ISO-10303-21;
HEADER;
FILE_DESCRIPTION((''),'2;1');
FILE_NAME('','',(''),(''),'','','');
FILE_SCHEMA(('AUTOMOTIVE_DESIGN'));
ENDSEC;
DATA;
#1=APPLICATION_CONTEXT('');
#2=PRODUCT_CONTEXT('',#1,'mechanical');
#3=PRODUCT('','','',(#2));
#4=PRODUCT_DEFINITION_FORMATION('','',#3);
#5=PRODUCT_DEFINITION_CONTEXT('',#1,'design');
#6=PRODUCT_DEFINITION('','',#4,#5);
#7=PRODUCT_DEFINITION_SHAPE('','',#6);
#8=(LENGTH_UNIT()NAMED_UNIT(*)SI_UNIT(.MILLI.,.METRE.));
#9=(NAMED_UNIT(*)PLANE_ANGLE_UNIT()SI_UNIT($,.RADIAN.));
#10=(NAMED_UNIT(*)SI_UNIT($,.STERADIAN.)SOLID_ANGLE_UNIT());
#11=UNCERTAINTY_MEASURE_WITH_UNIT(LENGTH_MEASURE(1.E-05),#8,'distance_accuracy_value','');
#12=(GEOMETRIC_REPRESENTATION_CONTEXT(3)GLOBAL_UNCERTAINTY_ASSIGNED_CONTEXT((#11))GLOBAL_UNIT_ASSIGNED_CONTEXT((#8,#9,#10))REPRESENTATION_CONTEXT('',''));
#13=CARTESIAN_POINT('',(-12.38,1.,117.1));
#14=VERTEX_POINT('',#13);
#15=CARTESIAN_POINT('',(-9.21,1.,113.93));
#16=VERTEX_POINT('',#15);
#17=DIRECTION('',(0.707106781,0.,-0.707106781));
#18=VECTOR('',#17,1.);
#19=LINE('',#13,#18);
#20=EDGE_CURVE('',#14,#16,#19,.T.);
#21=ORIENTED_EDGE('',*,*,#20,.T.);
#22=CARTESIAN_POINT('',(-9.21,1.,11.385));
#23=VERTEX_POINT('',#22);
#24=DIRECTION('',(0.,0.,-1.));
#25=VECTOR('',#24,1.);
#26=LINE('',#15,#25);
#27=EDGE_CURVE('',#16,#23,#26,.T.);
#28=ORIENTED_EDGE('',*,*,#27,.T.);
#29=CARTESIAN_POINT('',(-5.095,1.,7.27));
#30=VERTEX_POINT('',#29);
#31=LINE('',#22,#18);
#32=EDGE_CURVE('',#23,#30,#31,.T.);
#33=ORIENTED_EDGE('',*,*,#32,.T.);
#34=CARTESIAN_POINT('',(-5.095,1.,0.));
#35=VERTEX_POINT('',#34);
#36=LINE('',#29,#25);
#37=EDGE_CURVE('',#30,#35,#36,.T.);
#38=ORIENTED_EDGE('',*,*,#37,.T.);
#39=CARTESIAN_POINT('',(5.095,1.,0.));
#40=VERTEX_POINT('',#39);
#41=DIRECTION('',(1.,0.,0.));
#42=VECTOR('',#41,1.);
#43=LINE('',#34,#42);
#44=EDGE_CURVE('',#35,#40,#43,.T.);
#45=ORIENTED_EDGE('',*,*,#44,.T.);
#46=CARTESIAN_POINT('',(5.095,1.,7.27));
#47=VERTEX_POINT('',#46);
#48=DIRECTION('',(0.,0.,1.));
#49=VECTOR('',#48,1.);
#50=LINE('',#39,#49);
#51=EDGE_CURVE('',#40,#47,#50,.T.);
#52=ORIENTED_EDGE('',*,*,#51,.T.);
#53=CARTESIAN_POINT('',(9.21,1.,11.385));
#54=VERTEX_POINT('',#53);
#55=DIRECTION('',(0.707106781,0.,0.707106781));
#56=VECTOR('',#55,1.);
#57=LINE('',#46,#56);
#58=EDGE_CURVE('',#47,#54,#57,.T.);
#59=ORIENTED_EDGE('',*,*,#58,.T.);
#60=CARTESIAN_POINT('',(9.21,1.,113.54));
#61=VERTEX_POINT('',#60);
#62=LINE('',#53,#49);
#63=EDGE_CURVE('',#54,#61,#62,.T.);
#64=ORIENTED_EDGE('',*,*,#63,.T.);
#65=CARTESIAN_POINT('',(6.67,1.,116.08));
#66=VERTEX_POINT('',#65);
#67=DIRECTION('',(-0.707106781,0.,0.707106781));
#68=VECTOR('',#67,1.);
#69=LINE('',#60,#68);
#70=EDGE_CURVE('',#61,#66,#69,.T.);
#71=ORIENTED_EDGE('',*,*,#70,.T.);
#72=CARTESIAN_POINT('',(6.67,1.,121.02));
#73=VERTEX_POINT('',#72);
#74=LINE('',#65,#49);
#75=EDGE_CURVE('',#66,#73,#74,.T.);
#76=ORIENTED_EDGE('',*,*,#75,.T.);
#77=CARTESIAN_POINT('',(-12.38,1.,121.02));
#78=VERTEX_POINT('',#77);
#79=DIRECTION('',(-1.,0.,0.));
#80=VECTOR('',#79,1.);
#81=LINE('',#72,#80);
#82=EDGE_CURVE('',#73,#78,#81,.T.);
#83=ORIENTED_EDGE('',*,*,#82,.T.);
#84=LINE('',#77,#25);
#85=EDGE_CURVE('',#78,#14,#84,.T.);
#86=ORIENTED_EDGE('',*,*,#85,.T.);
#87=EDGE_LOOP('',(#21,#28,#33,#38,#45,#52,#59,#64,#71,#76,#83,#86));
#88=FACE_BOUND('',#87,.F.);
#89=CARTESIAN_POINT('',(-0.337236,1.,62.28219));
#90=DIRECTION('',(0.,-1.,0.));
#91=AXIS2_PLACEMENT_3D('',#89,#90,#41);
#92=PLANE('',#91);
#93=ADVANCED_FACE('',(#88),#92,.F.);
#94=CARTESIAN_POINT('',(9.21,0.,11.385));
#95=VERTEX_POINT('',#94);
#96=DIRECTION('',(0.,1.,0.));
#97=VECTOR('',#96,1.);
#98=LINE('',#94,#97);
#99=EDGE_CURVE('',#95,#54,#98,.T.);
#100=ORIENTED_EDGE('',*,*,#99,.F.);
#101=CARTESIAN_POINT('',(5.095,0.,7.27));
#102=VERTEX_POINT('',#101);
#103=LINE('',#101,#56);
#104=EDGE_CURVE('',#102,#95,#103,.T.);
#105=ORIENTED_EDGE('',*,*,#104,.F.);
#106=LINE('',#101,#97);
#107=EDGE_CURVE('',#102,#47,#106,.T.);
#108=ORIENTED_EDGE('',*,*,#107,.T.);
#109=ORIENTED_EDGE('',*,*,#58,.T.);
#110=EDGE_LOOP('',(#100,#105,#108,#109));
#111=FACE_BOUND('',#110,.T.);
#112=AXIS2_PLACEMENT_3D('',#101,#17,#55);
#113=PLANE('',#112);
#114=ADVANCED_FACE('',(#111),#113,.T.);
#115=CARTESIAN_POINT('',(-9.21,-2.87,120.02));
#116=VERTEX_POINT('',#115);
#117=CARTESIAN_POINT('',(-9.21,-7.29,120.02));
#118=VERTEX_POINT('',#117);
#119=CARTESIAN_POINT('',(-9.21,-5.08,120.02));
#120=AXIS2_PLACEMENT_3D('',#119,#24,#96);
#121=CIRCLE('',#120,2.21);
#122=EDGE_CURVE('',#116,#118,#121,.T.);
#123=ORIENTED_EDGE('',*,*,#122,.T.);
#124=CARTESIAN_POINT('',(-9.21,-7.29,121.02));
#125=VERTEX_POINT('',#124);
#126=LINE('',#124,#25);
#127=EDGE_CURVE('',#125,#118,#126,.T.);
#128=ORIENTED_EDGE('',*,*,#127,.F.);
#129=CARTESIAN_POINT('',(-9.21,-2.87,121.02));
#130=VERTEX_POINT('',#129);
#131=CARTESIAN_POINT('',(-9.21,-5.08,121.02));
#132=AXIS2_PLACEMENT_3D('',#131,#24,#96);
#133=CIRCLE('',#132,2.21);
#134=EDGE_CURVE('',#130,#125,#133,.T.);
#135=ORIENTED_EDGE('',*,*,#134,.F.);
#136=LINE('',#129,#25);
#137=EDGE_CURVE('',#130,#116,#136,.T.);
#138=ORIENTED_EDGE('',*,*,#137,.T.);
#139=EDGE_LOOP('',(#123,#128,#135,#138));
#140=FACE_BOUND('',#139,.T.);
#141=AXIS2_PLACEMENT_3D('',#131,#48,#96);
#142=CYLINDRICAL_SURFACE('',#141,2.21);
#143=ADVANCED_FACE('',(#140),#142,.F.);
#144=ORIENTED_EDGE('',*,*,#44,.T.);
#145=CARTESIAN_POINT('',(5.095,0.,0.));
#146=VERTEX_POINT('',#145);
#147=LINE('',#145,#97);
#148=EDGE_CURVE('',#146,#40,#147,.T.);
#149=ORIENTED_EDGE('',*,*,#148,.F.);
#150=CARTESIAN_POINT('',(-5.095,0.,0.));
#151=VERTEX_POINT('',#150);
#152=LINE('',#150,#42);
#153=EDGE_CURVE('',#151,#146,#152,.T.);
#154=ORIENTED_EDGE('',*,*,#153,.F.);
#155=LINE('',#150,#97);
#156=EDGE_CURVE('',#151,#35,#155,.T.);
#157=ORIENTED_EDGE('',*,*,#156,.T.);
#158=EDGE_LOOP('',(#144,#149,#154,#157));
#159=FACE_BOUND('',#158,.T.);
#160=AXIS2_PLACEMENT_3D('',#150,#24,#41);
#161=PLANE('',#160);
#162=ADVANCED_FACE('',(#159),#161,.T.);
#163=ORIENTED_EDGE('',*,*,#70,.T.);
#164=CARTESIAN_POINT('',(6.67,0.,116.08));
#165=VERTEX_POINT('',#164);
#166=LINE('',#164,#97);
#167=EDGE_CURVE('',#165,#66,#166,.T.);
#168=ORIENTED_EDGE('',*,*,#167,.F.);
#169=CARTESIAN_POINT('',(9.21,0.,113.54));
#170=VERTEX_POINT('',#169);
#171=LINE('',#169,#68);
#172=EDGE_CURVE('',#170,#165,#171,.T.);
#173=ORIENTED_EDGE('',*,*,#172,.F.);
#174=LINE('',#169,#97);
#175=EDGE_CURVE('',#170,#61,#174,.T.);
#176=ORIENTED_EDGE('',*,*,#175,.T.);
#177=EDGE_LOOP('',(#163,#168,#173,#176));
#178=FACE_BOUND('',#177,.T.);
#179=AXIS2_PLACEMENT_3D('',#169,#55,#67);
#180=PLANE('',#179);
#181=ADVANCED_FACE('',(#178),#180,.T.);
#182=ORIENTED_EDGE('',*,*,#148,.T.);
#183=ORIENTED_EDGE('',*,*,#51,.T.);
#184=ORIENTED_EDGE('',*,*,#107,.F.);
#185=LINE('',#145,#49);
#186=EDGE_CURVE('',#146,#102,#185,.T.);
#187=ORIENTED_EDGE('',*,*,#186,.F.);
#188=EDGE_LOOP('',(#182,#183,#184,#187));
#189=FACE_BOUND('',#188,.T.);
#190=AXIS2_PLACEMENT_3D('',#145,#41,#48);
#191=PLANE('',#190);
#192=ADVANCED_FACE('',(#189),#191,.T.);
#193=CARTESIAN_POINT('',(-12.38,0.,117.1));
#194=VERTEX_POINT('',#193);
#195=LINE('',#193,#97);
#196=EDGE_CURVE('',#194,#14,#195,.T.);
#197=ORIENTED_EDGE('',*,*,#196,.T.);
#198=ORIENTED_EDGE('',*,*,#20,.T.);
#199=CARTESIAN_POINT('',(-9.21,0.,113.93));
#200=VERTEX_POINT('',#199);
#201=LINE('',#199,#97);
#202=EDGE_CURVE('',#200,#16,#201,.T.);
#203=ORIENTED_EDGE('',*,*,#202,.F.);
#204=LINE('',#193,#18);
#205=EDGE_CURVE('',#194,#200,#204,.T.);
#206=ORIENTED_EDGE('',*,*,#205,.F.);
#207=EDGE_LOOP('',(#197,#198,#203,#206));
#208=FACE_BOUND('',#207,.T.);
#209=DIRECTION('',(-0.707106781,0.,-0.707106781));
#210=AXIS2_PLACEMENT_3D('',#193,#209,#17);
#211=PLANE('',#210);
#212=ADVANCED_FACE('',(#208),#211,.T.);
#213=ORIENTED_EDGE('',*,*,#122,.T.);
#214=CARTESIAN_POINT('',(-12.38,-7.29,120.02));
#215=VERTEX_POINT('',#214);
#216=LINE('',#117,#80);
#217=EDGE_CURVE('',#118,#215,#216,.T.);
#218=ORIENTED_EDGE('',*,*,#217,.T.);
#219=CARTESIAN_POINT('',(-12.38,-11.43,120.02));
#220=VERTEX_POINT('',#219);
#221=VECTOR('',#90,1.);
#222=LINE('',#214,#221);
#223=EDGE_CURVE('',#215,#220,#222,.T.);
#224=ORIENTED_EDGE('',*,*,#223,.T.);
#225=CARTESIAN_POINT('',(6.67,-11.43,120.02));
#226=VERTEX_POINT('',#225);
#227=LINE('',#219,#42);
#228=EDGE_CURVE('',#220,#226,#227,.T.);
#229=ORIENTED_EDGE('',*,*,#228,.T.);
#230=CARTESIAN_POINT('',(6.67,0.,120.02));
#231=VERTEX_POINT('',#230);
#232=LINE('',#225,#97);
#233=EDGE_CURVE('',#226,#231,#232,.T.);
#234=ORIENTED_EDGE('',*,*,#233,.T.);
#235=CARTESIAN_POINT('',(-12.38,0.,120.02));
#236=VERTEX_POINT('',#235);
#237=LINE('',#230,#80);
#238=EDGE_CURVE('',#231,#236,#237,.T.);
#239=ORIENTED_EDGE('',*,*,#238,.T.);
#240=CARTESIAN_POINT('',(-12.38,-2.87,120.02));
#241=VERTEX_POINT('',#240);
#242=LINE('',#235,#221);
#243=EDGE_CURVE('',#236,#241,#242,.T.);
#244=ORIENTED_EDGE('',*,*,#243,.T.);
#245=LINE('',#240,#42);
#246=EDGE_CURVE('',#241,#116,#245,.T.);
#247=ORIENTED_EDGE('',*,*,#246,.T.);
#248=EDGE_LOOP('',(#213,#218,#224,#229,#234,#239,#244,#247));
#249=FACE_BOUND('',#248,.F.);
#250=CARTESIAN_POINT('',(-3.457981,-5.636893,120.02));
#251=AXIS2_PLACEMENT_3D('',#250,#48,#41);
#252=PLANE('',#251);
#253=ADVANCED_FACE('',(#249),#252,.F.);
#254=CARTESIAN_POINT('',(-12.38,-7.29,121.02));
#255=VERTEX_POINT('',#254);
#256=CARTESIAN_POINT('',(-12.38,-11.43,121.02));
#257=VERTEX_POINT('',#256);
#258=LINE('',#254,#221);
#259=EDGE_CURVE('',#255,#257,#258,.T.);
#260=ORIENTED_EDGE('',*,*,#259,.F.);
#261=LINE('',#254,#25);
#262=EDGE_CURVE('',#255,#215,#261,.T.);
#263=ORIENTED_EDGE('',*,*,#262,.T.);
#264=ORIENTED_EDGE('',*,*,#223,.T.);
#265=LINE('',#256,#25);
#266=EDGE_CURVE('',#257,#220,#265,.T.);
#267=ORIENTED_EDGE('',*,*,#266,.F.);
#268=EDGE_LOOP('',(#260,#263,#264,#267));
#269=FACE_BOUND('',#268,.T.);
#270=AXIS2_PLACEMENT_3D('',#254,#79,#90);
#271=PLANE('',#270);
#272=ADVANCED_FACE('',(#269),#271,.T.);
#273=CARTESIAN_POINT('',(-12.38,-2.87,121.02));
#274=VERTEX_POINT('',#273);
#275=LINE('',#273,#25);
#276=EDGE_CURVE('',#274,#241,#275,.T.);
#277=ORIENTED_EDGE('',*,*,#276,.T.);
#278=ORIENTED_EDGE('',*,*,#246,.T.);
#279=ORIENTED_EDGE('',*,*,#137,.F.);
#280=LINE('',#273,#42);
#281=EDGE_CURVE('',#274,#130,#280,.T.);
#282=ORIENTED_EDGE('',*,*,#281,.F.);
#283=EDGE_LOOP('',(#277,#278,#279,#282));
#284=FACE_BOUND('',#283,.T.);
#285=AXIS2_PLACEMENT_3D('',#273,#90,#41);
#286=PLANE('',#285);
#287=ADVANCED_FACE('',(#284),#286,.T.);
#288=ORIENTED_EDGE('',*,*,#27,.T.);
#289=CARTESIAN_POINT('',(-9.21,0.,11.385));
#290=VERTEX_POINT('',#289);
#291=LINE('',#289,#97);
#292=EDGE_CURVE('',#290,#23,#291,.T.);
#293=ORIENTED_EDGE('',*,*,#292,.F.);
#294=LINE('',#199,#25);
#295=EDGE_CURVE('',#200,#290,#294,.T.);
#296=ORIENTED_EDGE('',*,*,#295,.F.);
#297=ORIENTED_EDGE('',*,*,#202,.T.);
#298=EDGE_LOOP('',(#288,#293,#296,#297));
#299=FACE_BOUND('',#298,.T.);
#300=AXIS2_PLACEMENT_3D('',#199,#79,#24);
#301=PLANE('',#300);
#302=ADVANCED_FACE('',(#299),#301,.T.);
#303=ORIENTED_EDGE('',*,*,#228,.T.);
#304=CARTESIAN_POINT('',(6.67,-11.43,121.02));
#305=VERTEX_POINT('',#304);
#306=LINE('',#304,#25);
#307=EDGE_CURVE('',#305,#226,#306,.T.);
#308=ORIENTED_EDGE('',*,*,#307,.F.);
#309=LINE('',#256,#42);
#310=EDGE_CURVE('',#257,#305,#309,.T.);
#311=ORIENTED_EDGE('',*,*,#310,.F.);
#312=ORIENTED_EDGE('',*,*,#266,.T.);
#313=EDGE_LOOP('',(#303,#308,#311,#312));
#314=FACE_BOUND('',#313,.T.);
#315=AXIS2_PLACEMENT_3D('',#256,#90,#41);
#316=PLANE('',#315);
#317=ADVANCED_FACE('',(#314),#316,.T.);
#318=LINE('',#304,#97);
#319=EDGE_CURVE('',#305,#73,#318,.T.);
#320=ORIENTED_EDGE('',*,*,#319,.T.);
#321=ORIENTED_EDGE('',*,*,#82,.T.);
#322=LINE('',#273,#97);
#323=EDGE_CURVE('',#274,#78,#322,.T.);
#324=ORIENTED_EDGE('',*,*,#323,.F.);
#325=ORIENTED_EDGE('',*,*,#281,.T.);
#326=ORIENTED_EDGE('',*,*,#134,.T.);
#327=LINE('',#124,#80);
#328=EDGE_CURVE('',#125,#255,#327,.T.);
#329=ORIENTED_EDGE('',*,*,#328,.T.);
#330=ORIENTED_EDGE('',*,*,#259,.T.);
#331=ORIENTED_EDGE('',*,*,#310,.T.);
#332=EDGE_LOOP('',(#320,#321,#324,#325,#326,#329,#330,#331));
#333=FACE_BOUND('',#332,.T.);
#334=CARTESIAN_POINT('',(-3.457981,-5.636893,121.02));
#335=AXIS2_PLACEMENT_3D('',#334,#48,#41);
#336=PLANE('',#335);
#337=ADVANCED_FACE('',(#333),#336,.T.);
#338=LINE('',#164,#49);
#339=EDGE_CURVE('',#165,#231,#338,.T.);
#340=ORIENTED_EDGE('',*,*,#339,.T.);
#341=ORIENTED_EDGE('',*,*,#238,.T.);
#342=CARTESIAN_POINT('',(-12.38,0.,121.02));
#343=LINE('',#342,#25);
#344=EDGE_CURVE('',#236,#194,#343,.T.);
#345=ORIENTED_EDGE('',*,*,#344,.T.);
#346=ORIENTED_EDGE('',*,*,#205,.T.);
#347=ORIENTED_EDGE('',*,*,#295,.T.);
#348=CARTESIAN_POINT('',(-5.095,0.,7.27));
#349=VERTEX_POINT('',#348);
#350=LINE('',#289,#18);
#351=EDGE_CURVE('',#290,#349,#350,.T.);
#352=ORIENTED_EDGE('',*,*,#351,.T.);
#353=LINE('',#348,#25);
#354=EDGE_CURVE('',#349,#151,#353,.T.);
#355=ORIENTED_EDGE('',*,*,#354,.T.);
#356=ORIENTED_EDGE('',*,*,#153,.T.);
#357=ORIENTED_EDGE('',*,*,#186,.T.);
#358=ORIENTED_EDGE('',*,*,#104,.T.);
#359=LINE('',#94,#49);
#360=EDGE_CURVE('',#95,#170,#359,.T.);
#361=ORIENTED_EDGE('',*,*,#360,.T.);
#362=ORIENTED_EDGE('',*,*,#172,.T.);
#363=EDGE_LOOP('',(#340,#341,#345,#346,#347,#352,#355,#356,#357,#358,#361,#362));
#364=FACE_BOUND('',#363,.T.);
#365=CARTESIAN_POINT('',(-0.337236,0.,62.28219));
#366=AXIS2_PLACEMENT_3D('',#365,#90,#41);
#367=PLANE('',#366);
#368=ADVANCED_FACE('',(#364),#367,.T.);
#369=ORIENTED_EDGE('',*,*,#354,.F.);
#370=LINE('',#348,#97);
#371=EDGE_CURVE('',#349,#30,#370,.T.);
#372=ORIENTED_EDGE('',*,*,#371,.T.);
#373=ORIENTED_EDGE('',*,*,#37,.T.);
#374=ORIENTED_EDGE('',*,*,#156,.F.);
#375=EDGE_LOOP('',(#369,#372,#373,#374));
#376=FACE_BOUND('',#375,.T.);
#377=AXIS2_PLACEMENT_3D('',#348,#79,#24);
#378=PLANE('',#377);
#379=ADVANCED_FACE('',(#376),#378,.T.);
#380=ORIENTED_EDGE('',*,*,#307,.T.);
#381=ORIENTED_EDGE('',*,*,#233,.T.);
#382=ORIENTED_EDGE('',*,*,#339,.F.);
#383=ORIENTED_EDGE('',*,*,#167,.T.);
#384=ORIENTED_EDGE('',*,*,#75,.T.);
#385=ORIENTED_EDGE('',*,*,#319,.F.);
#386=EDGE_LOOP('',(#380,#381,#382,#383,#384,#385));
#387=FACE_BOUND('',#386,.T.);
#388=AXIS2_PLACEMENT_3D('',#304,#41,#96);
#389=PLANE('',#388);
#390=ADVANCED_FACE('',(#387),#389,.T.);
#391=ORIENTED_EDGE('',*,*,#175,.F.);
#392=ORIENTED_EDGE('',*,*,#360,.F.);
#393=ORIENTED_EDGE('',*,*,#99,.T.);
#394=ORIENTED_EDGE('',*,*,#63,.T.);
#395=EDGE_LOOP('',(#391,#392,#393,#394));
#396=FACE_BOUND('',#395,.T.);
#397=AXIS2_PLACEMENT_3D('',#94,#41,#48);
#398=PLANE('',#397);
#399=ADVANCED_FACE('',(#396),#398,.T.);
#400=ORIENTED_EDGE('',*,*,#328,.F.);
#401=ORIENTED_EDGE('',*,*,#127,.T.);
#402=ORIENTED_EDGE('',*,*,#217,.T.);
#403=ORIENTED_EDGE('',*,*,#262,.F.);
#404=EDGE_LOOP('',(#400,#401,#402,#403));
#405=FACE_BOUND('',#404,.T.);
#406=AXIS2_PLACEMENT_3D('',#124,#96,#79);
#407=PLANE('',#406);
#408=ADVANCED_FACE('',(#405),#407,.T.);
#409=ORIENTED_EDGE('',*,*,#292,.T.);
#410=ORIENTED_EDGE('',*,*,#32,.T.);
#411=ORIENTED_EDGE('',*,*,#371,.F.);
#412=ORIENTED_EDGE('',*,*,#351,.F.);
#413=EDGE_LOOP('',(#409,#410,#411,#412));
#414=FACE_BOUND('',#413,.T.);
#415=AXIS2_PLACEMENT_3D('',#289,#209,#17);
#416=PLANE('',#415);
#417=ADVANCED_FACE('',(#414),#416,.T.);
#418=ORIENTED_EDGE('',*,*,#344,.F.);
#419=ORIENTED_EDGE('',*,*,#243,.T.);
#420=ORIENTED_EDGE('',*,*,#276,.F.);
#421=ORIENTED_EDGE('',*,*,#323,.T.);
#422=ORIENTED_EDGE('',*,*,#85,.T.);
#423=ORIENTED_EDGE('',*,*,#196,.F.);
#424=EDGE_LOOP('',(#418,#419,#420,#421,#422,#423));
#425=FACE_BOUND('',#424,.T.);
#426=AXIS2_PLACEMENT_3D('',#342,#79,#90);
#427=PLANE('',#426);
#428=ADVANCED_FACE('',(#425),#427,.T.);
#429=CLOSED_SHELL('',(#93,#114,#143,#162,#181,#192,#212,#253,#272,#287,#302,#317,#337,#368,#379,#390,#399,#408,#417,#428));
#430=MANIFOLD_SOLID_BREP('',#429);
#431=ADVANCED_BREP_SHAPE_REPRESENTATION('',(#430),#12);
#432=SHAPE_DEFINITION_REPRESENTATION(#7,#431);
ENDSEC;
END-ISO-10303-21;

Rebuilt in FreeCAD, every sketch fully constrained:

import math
import FreeCAD as App
import Part
import Sketcher

V = App.Vector
Q = App.Units.Quantity


def add_polygon(sketch, points):
    """Adds a closed chain of lines whose ends are joined by coincident constraints."""
    first, n = sketch.GeometryCount, len(points)
    for a, b in zip(points, points[1:] + points[:1]):
        sketch.addGeometry(Part.LineSegment(App.Vector(*a, 0), App.Vector(*b, 0)), False)
    for i in range(n):
        sketch.addConstraint(Sketcher.Constraint("Coincident", first + i, 2, first + (i + 1) % n, 1))

doc = App.newDocument("Part")
body = doc.addObject("PartDesign::Body", "Body")

# Sketch on XZ plane
sketch1 = doc.addObject("Sketcher::SketchObject", "Sketch")
body.addObject(sketch1)
sketch1.AttachmentSupport = (doc.XZ_Plane, [""])
sketch1.MapMode = "FlatFace"
add_polygon(sketch1, [(-5.1, 7.3), (-5.1, 0), (5.1, 0), (5.1, 7.3), (9.2, 11.4), (9.2, 113.5), (6.7, 116.1), (6.7, 121), (-12.4, 121), (-12.4, 117.1), (-9.2, 113.9), (-9.2, 11.4)])  # lines 0-11
sketch1.addConstraint(Sketcher.Constraint("Vertical", 0))
sketch1.addConstraint(Sketcher.Constraint("Horizontal", 1))
sketch1.addConstraint(Sketcher.Constraint("Vertical", 2))
sketch1.addConstraint(Sketcher.Constraint("Vertical", 4))
sketch1.addConstraint(Sketcher.Constraint("Vertical", 6))
sketch1.addConstraint(Sketcher.Constraint("Horizontal", 7))
sketch1.addConstraint(Sketcher.Constraint("Vertical", 8))
sketch1.addConstraint(Sketcher.Constraint("Vertical", 10))
sketch1.addConstraint(Sketcher.Constraint("Symmetric", 0, 2, 1, 2, -1, 1))
sketch1.addConstraint(Sketcher.Constraint("Symmetric", 3, 2, 10, 2, -2))
sketch1.addConstraint(Sketcher.Constraint("Perpendicular", 3, 5))
sketch1.addConstraint(Sketcher.Constraint("Parallel", 5, 9))
sketch1.addConstraint(Sketcher.Constraint("Parallel", 9, 11))
sketch1.addConstraint(Sketcher.Constraint("Horizontal", 2, 2, 11, 2))
sketch1.addConstraint(Sketcher.Constraint("DistanceX", 7, 2, 7, 1, Q("0.75 in")))
sketch1.addConstraint(Sketcher.Constraint("DistanceX", 5, 2, 4, 2, Q("0.1 in")))
sketch1.addConstraint(Sketcher.Constraint("DistanceX", 1, 1, 1, 2, 10.19))
sketch1.addConstraint(Sketcher.Constraint("DistanceY", 0, 2, 0, 1, 7.27))
sketch1.addConstraint(Sketcher.Constraint("DistanceY", 4, 1, 4, 2, 102.155))
sketch1.addConstraint(Sketcher.Constraint("DistanceY", 6, 1, 6, 2, 4.94))
sketch1.addConstraint(Sketcher.Constraint("DistanceY", 8, 2, 8, 1, 3.92))
sketch1.addConstraint(Sketcher.Constraint("DistanceY", 10, 2, 10, 1, 102.545))
pad1 = doc.addObject("PartDesign::Pad", "Pad")
body.addObject(pad1)
pad1.Profile = sketch1
pad1.Length = 1
pad1.Reversed = True

# Sketch on XY plane
sketch2 = doc.addObject("Sketcher::SketchObject", "Sketch001")
body.addObject(sketch2)
sketch2.AttachmentSupport = (doc.XY_Plane, [""])
sketch2.MapMode = "FlatFace"
sketch2.AttachmentOffset = App.Placement(V(0, 0, 121.02), App.Rotation())
sketch2.addGeometry(Part.LineSegment(V(6.7, 0, 0), V(-12.4, 0, 0)), False)
sketch2.addGeometry(Part.LineSegment(V(-12.4, 0, 0), V(-12.4, -2.9, 0)), False)
sketch2.addGeometry(Part.LineSegment(V(-12.4, -2.9, 0), V(-9.2, -2.9, 0)), False)
sketch2.addGeometry(Part.ArcOfCircle(Part.Circle(V(-9.2, -5.1, 0), V(0, 0, 1), 2.2), math.radians(-90), math.radians(90)), False)
sketch2.addGeometry(Part.LineSegment(V(-9.2, -7.3, 0), V(-12.4, -7.3, 0)), False)
sketch2.addGeometry(Part.LineSegment(V(-12.4, -7.3, 0), V(-12.4, -11.4, 0)), False)
sketch2.addGeometry(Part.LineSegment(V(-12.4, -11.4, 0), V(6.7, -11.4, 0)), False)
sketch2.addGeometry(Part.LineSegment(V(6.7, -11.4, 0), V(6.7, 0, 0)), False)
sketch2.addConstraint(Sketcher.Constraint("Coincident", 0, 2, 1, 1))
sketch2.addConstraint(Sketcher.Constraint("Coincident", 1, 2, 2, 1))
sketch2.addConstraint(Sketcher.Constraint("Tangent", 2, 2, 3, 2))
sketch2.addConstraint(Sketcher.Constraint("Tangent", 3, 1, 4, 1))
sketch2.addConstraint(Sketcher.Constraint("Coincident", 4, 2, 5, 1))
sketch2.addConstraint(Sketcher.Constraint("Coincident", 5, 2, 6, 1))
sketch2.addConstraint(Sketcher.Constraint("Coincident", 6, 2, 7, 1))
sketch2.addConstraint(Sketcher.Constraint("Coincident", 7, 2, 0, 1))
sketch2.addConstraint(Sketcher.Constraint("Horizontal", 0))
sketch2.addConstraint(Sketcher.Constraint("Vertical", 1))
sketch2.addConstraint(Sketcher.Constraint("Horizontal", 2))
sketch2.addConstraint(Sketcher.Constraint("Horizontal", 4))
sketch2.addConstraint(Sketcher.Constraint("Vertical", 5))
sketch2.addConstraint(Sketcher.Constraint("Horizontal", 6))
sketch2.addConstraint(Sketcher.Constraint("Vertical", 7))
sketch2.addConstraint(Sketcher.Constraint("PointOnObject", 0, 2, -1))
sketch2.addConstraint(Sketcher.Constraint("Vertical", 1, 2, 4, 2))
sketch2.addConstraint(Sketcher.Constraint("DistanceX", 0, 2, 0, 1, Q("0.75 in")))
sketch2.addConstraint(Sketcher.Constraint("DistanceY", 7, 1, 7, 2, Q("0.45 in")))
sketch2.addConstraint(Sketcher.Constraint("DistanceY", 3, 3, -1, 1, Q("0.2 in")))
sketch2.addConstraint(Sketcher.Constraint("Radius", 3, 2.21))
sketch2.addConstraint(Sketcher.Constraint("DistanceX", 2, 1, 2, 2, 3.17))
sketch2.addConstraint(Sketcher.Constraint("DistanceX", 3, 3, -1, 1, 9.21))
pad2 = doc.addObject("PartDesign::Pad", "Pad001")
body.addObject(pad2)
pad2.Profile = sketch2
pad2.Length = 1
pad2.Reversed = True

doc.recompute()
